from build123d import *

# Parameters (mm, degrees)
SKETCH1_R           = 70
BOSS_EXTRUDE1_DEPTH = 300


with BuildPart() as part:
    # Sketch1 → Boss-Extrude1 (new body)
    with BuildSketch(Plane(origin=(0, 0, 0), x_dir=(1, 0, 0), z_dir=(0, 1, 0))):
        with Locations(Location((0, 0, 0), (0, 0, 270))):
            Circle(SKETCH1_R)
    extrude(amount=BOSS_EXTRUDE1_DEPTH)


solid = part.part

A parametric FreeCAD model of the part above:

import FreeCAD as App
import Part
import Sketcher
from FreeCAD import Vector
Q = App.Units.Quantity

doc = App.newDocument("Part")
params = doc.addObject("Spreadsheet::Sheet", "Params")
for row, (alias, value) in enumerate([
    ("sketch1_diameter", "140 mm"),
    ("pad1_length", "300 mm"),
], start=1):
    params.set(f"A{row}", alias)
    params.set(f"B{row}", "=" + value)
    params.setAlias(f"B{row}", alias)

body = doc.addObject("PartDesign::Body", "Body")

# Sketch on XZ plane
sketch1 = body.newObject("Sketcher::SketchObject", "Sketch")
sketch1.AttachmentSupport = (doc.getObject("XZ_Plane"), [""])
sketch1.MapMode = "FlatFace"
sketch1.addGeometry(Part.Circle(Vector(0, 0, 0), Vector(0, 0, 1), 70), False)
sketch1.addConstraint(Sketcher.Constraint("Coincident", 0, 3, -1, 1))
sketch1.addConstraint(Sketcher.Constraint("Diameter", 0, Q("140 mm")))
sketch1.setExpression("Constraints[1]", "Params.sketch1_diameter")
pad1 = body.newObject("PartDesign::Pad", "Pad")
pad1.Profile = sketch1
pad1.setExpression("Length", "Params.pad1_length")
pad1.Reversed = True

doc.recompute()
